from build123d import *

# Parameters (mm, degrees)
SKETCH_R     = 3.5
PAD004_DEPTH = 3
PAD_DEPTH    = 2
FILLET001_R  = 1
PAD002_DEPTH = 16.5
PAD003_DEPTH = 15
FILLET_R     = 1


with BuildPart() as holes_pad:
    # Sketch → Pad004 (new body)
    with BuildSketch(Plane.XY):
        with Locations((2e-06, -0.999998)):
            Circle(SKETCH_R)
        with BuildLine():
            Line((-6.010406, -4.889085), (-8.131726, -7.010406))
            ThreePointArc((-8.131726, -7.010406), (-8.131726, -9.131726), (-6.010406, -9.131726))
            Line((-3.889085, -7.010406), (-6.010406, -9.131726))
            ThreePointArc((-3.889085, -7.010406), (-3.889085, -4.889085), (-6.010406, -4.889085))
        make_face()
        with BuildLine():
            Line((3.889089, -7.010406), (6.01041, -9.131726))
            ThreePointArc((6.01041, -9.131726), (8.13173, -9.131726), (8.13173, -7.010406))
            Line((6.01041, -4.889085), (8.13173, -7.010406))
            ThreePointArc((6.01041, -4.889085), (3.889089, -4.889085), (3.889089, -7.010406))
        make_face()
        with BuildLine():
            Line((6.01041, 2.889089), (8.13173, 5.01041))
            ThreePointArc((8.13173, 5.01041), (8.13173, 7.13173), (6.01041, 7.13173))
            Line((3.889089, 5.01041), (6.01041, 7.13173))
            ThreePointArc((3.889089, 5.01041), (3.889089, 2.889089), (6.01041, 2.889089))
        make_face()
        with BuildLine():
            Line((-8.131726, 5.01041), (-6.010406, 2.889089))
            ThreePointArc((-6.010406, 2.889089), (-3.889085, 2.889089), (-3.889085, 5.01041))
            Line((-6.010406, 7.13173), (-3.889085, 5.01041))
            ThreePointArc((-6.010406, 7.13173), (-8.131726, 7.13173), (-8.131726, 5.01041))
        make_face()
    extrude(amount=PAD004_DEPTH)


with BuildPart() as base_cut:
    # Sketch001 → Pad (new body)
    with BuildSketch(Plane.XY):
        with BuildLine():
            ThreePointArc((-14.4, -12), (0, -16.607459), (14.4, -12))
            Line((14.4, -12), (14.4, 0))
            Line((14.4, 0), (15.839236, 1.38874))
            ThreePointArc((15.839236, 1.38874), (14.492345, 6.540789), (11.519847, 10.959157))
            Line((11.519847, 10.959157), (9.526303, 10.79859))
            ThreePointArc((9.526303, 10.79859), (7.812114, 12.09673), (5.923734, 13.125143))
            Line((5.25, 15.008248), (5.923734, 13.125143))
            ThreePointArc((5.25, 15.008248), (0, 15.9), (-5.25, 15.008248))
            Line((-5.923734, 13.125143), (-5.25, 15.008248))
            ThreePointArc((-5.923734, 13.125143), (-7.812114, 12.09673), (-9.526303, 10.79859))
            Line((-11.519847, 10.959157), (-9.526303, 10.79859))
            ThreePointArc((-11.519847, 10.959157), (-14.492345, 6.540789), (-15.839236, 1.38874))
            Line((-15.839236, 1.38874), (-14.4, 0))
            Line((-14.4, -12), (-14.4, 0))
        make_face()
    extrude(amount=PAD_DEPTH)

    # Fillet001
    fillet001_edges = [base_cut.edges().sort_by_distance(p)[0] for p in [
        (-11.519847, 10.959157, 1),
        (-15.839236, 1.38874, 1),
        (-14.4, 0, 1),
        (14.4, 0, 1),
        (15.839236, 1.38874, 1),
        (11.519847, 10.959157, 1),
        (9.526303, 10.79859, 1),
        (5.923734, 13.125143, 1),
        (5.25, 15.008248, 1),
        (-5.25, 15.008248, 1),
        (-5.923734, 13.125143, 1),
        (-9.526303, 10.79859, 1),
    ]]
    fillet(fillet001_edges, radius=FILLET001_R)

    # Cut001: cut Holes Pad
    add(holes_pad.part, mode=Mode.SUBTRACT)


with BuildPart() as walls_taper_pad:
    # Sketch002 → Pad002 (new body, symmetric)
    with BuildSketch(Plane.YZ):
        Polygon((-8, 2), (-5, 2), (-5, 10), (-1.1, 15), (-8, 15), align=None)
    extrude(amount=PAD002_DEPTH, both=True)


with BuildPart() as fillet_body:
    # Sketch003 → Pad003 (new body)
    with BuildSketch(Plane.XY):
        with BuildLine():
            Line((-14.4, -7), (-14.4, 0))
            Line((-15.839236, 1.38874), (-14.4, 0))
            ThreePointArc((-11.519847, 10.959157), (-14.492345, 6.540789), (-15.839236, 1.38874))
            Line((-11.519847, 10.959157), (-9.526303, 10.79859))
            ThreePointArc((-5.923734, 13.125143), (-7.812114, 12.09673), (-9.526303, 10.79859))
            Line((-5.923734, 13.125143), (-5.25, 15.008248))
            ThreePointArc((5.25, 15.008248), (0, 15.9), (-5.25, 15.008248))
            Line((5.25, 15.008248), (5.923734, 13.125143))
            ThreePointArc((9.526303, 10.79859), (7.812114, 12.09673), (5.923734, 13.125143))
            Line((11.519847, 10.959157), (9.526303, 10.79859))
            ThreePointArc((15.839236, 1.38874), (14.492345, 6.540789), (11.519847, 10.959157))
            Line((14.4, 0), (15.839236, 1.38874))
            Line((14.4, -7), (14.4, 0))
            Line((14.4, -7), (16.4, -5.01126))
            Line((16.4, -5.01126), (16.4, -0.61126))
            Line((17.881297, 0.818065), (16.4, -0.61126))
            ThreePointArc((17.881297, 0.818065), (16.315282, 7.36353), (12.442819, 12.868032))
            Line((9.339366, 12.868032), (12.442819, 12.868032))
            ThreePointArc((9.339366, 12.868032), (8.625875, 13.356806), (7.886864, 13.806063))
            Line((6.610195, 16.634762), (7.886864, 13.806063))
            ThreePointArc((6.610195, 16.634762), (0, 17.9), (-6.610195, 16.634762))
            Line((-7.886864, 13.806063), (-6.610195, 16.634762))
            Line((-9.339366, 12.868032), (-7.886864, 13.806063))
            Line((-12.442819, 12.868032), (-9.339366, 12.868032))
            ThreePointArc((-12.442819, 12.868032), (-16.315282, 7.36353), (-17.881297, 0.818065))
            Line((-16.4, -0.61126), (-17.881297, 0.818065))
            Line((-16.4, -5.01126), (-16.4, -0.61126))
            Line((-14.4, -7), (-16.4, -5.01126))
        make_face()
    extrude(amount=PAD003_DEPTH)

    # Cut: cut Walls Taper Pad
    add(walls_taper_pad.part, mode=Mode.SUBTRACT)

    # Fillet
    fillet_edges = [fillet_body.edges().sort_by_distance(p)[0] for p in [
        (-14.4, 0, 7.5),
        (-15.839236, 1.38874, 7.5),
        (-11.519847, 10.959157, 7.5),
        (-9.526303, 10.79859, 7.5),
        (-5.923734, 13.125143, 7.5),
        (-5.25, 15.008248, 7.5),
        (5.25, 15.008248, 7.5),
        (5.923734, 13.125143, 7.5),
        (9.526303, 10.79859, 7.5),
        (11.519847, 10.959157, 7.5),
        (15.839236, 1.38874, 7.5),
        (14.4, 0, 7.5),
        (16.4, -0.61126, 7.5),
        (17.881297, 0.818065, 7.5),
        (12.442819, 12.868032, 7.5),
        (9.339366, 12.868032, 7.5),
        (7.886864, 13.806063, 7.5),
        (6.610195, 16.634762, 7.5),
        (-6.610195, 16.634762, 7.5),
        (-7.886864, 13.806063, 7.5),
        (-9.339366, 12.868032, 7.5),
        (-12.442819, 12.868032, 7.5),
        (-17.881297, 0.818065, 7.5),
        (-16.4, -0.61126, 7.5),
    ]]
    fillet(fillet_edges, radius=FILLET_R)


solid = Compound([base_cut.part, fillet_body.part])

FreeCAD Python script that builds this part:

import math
import FreeCAD as App
import Part
import Sketcher

V = App.Vector
Q = App.Units.Quantity


def edges_at(feature, points):
    """Names of the edges that pass closest to the given points."""
    edges = feature.Shape.Edges
    near = lambda p: min(range(len(edges)), key=lambda i: edges[i].distToShape(Part.Vertex(*p))[0])
    return sorted({f"Edge{near(p) + 1}" for p in points})

doc = App.newDocument("Part")
body = doc.addObject("PartDesign::Body", "Body")
body.AllowCompound = True

# Sketch on XY plane
sketch1 = doc.addObject("Sketcher::SketchObject", "Sketch")
body.addObject(sketch1)
sketch1.AttachmentSupport = (doc.XY_Plane, [""])
sketch1.MapMode = "FlatFace"
sketch1.addGeometry(Part.Circle(V(0, -1, 0), V(0, 0, 1), 3.5), False)
sketch1.addGeometry(Part.LineSegment(V(-6, -4.9, 0), V(-8.1, -7, 0)), False)
sketch1.addGeometry(Part.ArcOfCircle(Part.Circle(V(-7.1, -8.1, 0), V(0, 0, 1), 1.5), math.radians(135), math.radians(315)), False)
sketch1.addGeometry(Part.LineSegment(V(-6, -9.1, 0), V(-3.9, -7, 0)), False)
sketch1.addGeometry(Part.ArcOfCircle(Part.Circle(V(-4.9, -5.9, 0), V(0, 0, 1), 1.5), math.radians(-45), math.radians(135)), False)
sketch1.addGeometry(Part.LineSegment(V(3.9, -7, 0), V(6, -9.1, 0)), False)
sketch1.addGeometry(Part.ArcOfCircle(Part.Circle(V(7.1, -8.1, 0), V(0, 0, 1), 1.5), math.radians(-135), math.radians(45)), False)
sketch1.addGeometry(Part.LineSegment(V(8.1, -7, 0), V(6, -4.9, 0)), False)
sketch1.addGeometry(Part.ArcOfCircle(Part.Circle(V(4.9, -5.9, 0), V(0, 0, 1), 1.5), math.radians(45), math.radians(225)), False)
sketch1.addGeometry(Part.LineSegment(V(6, 2.9, 0), V(8.1, 5, 0)), False)
sketch1.addGeometry(Part.ArcOfCircle(Part.Circle(V(7.1, 6.1, 0), V(0, 0, 1), 1.5), math.radians(-45), math.radians(135)), False)
sketch1.addGeometry(Part.LineSegment(V(6, 7.1, 0), V(3.9, 5, 0)), False)
sketch1.addGeometry(Part.ArcOfCircle(Part.Circle(V(4.9, 3.9, 0), V(0, 0, 1), 1.5), math.radians(135), math.radians(315)), False)
sketch1.addGeometry(Part.LineSegment(V(-8.1, 5, 0), V(-6, 2.9, 0)), False)
sketch1.addGeometry(Part.ArcOfCircle(Part.Circle(V(-4.9, 3.9, 0), V(0, 0, 1), 1.5), math.radians(-135), math.radians(45)), False)
sketch1.addGeometry(Part.LineSegment(V(-3.9, 5, 0), V(-6, 7.1, 0)), False)
sketch1.addGeometry(Part.ArcOfCircle(Part.Circle(V(-7.1, 6.1, 0), V(0, 0, 1), 1.5), math.radians(45), math.radians(225)), False)
sketch1.addConstraint(Sketcher.Constraint("Tangent", 1, 2, 2, 1))
sketch1.addConstraint(Sketcher.Constraint("Tangent", 2, 2, 3, 1))
sketch1.addConstraint(Sketcher.Constraint("Tangent", 3, 2, 4, 1))
sketch1.addConstraint(Sketcher.Constraint("Tangent", 4, 2, 1, 1))
sketch1.addConstraint(Sketcher.Constraint("Tangent", 5, 2, 6, 1))
sketch1.addConstraint(Sketcher.Constraint("Tangent", 6, 2, 7, 1))
sketch1.addConstraint(Sketcher.Constraint("Tangent", 7, 2, 8, 1))
sketch1.addConstraint(Sketcher.Constraint("Tangent", 8, 2, 5, 1))
sketch1.addConstraint(Sketcher.Constraint("Tangent", 9, 2, 10, 1))
sketch1.addConstraint(Sketcher.Constraint("Tangent", 10, 2, 11, 1))
sketch1.addConstraint(Sketcher.Constraint("Tangent", 11, 2, 12, 1))
sketch1.addConstraint(Sketcher.Constraint("Tangent", 12, 2, 9, 1))
sketch1.addConstraint(Sketcher.Constraint("Tangent", 13, 2, 14, 1))
sketch1.addConstraint(Sketcher.Constraint("Tangent", 14, 2, 15, 1))
sketch1.addConstraint(Sketcher.Constraint("Tangent", 15, 2, 16, 1))
sketch1.addConstraint(Sketcher.Constraint("Tangent", 16, 2, 13, 1))
sketch1.addConstraint(Sketcher.Constraint("Equal", 2, 4))
sketch1.addConstraint(Sketcher.Constraint("Equal", 4, 6))
sketch1.addConstraint(Sketcher.Constraint("Equal", 6, 8))
sketch1.addConstraint(Sketcher.Constraint("Equal", 8, 10))
sketch1.addConstraint(Sketcher.Constraint("Equal", 10, 12))
sketch1.addConstraint(Sketcher.Constraint("Equal", 12, 14))
sketch1.addConstraint(Sketcher.Constraint("Equal", 14, 16))
sketch1.addConstraint(Sketcher.Constraint("Symmetric", 2, 3, 6, 3, -2))
sketch1.addConstraint(Sketcher.Constraint("Symmetric", 4, 3, 8, 3, -2))
sketch1.addConstraint(Sketcher.Constraint("Symmetric", 12, 3, 14, 3, -2))
sketch1.addConstraint(Sketcher.Constraint("Symmetric", 10, 3, 16, 3, -2))
sketch1.addConstraint(Sketcher.Constraint("Perpendicular", 3, 5))
sketch1.addConstraint(Sketcher.Constraint("Perpendicular", 7, 9))
sketch1.addConstraint(Sketcher.Constraint("Horizontal", 1, 2, 3, 2))
sketch1.addConstraint(Sketcher.Constraint("Horizontal", 9, 2, 11, 2))
sketch1.addConstraint(Sketcher.Constraint("Vertical", 6, 3, 10, 3))
sketch1.addConstraint(Sketcher.Constraint("Diameter", 0, Q("7 mm")))
sketch1.addConstraint(Sketcher.Constraint("Radius", 2, Q("1.5 mm")))
sketch1.addConstraint(Sketcher.Constraint("DistanceY", 0, 3, -1, 1, Q("0.999998 mm")))
sketch1.addConstraint(Sketcher.Constraint("DistanceX", -1, 1, 6, 3, Q("7.07107 mm")))
sketch1.addConstraint(Sketcher.Constraint("DistanceY", -1, 1, 10, 3, Q("6.07107 mm")))
sketch1.addConstraint(Sketcher.Constraint("DistanceX", 2, 3, 0, 3, Q("7.071068 mm")))
sketch1.addConstraint(Sketcher.Constraint("DistanceY", 2, 3, 0, 3, Q("7.071068 mm")))
pad1 = doc.addObject("PartDesign::Pad", "Pad")
body.addObject(pad1)
pad1.Profile = sketch1
pad1.Length = 3
body2 = doc.addObject("PartDesign::Body", "Body001")

# Sketch on XY plane
sketch2 = doc.addObject("Sketcher::SketchObject", "Sketch001")
body2.addObject(sketch2)
sketch2.AttachmentSupport = (doc.getObject("XY_Plane001"), [""])
sketch2.MapMode = "FlatFace"
sketch2.addGeometry(Part.ArcOfCircle(Part.Circle(V(0, 8.198912, 0), V(0, 0, 1), 24.806371), math.radians(-125.485438), math.radians(-54.514562)), False)
sketch2.addGeometry(Part.LineSegment(V(14.4, -12, 0), V(14.4, 0, 0)), False)
sketch2.addGeometry(Part.LineSegment(V(14.4, 0, 0), V(15.839236, 1.38874, 0)), False)
sketch2.addGeometry(Part.ArcOfCircle(Part.Circle(V(-0.000006, -0.000003, 0), V(0, 0, 1), 15.900006), math.radians(5.010728), math.radians(43.571169)), False)
sketch2.addGeometry(Part.LineSegment(V(11.519847, 10.959157, 0), V(9.526303, 10.79859, 0)), False)
sketch2.addGeometry(Part.ArcOfCircle(Part.Circle(V(0.000004, 0.000008, 0), V(0, 0, 1), 14.399991), math.radians(48.581889), math.radians(65.70905)), False)
sketch2.addGeometry(Part.LineSegment(V(5.923734, 13.125143, 0), V(5.25, 15.008248, 0)), False)
sketch2.addGeometry(Part.ArcOfCircle(Part.Circle(V(0, -0.000005, 0), V(0, 0, 1), 15.900005), math.radians(70.719778), math.radians(109.280222)), False)
sketch2.addGeometry(Part.LineSegment(V(-5.25, 15.008248, 0), V(-5.923734, 13.125143, 0)), False)
sketch2.addGeometry(Part.ArcOfCircle(Part.Circle(V(-0.000004, 0.000008, 0), V(0, 0, 1), 14.399991), math.radians(114.29095), math.radians(131.418111)), False)
sketch2.addGeometry(Part.LineSegment(V(-9.526303, 10.79859, 0), V(-11.519847, 10.959157, 0)), False)
sketch2.addGeometry(Part.ArcOfCircle(Part.Circle(V(0.000006, -0.000003, 0), V(0, 0, 1), 15.900006), math.radians(136.428831), math.radians(174.989272)), False)
sketch2.addGeometry(Part.LineSegment(V(-15.839236, 1.38874, 0), V(-14.4, 0, 0)), False)
sketch2.addGeometry(Part.LineSegment(V(-14.4, 0, 0), V(-14.4, -12, 0)), False)
sketch2.addConstraint(Sketcher.Constraint("Coincident", 0, 2, 1, 1))
sketch2.addConstraint(Sketcher.Constraint("Coincident", 1, 2, 2, 1))
sketch2.addConstraint(Sketcher.Constraint("Coincident", 2, 2, 3, 1))
sketch2.addConstraint(Sketcher.Constraint("Coincident", 3, 2, 4, 1))
sketch2.addConstraint(Sketcher.Constraint("Coincident", 4, 2, 5, 1))
sketch2.addConstraint(Sketcher.Constraint("Coincident", 5, 2, 6, 1))
sketch2.addConstraint(Sketcher.Constraint("Coincident", 6, 2, 7, 1))
sketch2.addConstraint(Sketcher.Constraint("Coincident", 7, 2, 8, 1))
sketch2.addConstraint(Sketcher.Constraint("Coincident", 8, 2, 9, 1))
sketch2.addConstraint(Sketcher.Constraint("Coincident", 9, 2, 10, 1))
sketch2.addConstraint(Sketcher.Constraint("Coincident", 10, 2, 11, 1))
sketch2.addConstraint(Sketcher.Constraint("Coincident", 11, 2, 12, 1))
sketch2.addConstraint(Sketcher.Constraint("Coincident", 12, 2, 13, 1))
sketch2.addConstraint(Sketcher.Constraint("Coincident", 13, 2, 0, 1))
sketch2.addConstraint(Sketcher.Constraint("Vertical", 1))
sketch2.addConstraint(Sketcher.Constraint("Vertical", 13))
sketch2.addConstraint(Sketcher.Constraint("Coincident", 3, 3, -1, 1))
sketch2.addConstraint(Sketcher.Constraint("Coincident", 5, 3, -1, 1))
sketch2.addConstraint(Sketcher.Constraint("Coincident", 7, 3, -1, 1))
sketch2.addConstraint(Sketcher.Constraint("Coincident", 9, 3, -1, 1))
sketch2.addConstraint(Sketcher.Constraint("Coincident", 11, 3, -1, 1))
sketch2.addConstraint(Sketcher.Constraint("PointOnObject", 0, 3, -2))
sketch2.addConstraint(Sketcher.Constraint("PointOnObject", 1, 2, -1))
sketch2.addConstraint(Sketcher.Constraint("PointOnObject", 12, 2, -1))
sketch2.addConstraint(Sketcher.Constraint("DistanceY", 1, 1, 1, 2, Q("12 mm")))
sketch2.addConstraint(Sketcher.Constraint("DistanceY", 13, 2, 13, 1, Q("12 mm")))
sketch2.addConstraint(Sketcher.Constraint("Distance", 2, Q("2 mm")))
sketch2.addConstraint(Sketcher.Constraint("Distance", 4, Q("2 mm")))
sketch2.addConstraint(Sketcher.Constraint("Distance", 6, Q("2 mm")))
sketch2.addConstraint(Sketcher.Constraint("Distance", 8, Q("2 mm")))
sketch2.addConstraint(Sketcher.Constraint("Distance", 10, Q("2 mm")))
sketch2.addConstraint(Sketcher.Constraint("Distance", 12, Q("2 mm")))
sketch2.addConstraint(Sketcher.Constraint("DistanceX", -1, 1, 0, 2, Q("14.4 mm")))
sketch2.addConstraint(Sketcher.Constraint("DistanceX", 7, 2, 6, 2, Q("10.5 mm")))
sketch2.addConstraint(Sketcher.Constraint("DistanceX", -1, 1, 6, 2, Q("5.25 mm")))
sketch2.addConstraint(Sketcher.Constraint("Radius", 0, Q("24.806371 mm")))
sketch2.addConstraint(Sketcher.Constraint("Radius", 5, Q("14.399991 mm")))
sketch2.addConstraint(Sketcher.Constraint("Radius", 9, Q("14.399991 mm")))
sketch2.addConstraint(Sketcher.Constraint("Radius", 3, Q("15.900006 mm")))
sketch2.addConstraint(Sketcher.Constraint("Radius", 7, Q("15.900005 mm")))
sketch2.addConstraint(Sketcher.Constraint("Radius", 11, Q("15.900006 mm")))
sketch2.addConstraint(Sketcher.Constraint("DistanceX", 5, 3, 4, 2, Q("9.526299 mm")))
sketch2.addConstraint(Sketcher.Constraint("DistanceX", 9, 2, 9, 3, Q("9.526299 mm")))
pad2 = doc.addObject("PartDesign::Pad", "Pad001")
body2.addObject(pad2)
pad2.Profile = sketch2
pad2.Length = 2
doc.recompute()

fillet = doc.addObject("PartDesign::Fillet", "Fillet")
body2.addObject(fillet)
fillet.Base = (pad2, edges_at(pad2, [
    (-11.52, 10.959, 1),
    (-15.839, 1.389, 1),
    (-14.4, 0, 1),
    (14.4, 0, 1),
    (15.839, 1.389, 1),
    (11.52, 10.959, 1),
    (9.526, 10.799, 1),
    (5.924, 13.125, 1),
    (5.25, 15.008, 1),
    (-5.25, 15.008, 1),
    (-5.924, 13.125, 1),
    (-9.526, 10.799, 1),
]))
fillet.Radius = 1
doc.recompute()

boolean = doc.addObject("PartDesign::Boolean", "Boolean")
body2.addObject(boolean)
boolean.Type = "Cut"
boolean.addObjects([body])
body3 = doc.addObject("PartDesign::Body", "Body002")

# Sketch on YZ plane
sketch3 = doc.addObject("Sketcher::SketchObject", "Sketch002")
body3.addObject(sketch3)
sketch3.AttachmentSupport = (doc.getObject("YZ_Plane002"), [""])
sketch3.MapMode = "FlatFace"
sketch3.addGeometry(Part.LineSegment(V(-8, 2, 0), V(-5, 2, 0)), False)
sketch3.addGeometry(Part.LineSegment(V(-5, 2, 0), V(-5, 10, 0)), False)
sketch3.addGeometry(Part.LineSegment(V(-5, 10, 0), V(-1.1, 15, 0)), False)
sketch3.addGeometry(Part.LineSegment(V(-1.1, 15, 0), V(-8, 15, 0)), False)
sketch3.addGeometry(Part.LineSegment(V(-8, 15, 0), V(-8, 2, 0)), False)
sketch3.addConstraint(Sketcher.Constraint("Coincident", 0, 2, 1, 1))
sketch3.addConstraint(Sketcher.Constraint("Coincident", 1, 2, 2, 1))
sketch3.addConstraint(Sketcher.Constraint("Coincident", 2, 2, 3, 1))
sketch3.addConstraint(Sketcher.Constraint("Coincident", 3, 2, 4, 1))
sketch3.addConstraint(Sketcher.Constraint("Coincident", 4, 2, 0, 1))
sketch3.addConstraint(Sketcher.Constraint("Horizontal", 0))
sketch3.addConstraint(Sketcher.Constraint("Vertical", 1))
sketch3.addConstraint(Sketcher.Constraint("Horizontal", 3))
sketch3.addConstraint(Sketcher.Constraint("Vertical", 4))
sketch3.addConstraint(Sketcher.Constraint("DistanceX", 0, 1, 0, 2, Q("3 mm")))
sketch3.addConstraint(Sketcher.Constraint("DistanceY", 1, 1, 1, 2, Q("8 mm")))
sketch3.addConstraint(Sketcher.Constraint("DistanceY", 4, 2, 4, 1, Q("13 mm")))
sketch3.addConstraint(Sketcher.Constraint("DistanceX", 3, 2, 3, 1, Q("6.9 mm")))
sketch3.addConstraint(Sketcher.Constraint("DistanceX", 0, 2, -1, 1, Q("5 mm")))
sketch3.addConstraint(Sketcher.Constraint("DistanceY", -1, 1, 0, 2, Q("2 mm")))
pad3 = doc.addObject("PartDesign::Pad", "Pad002")
body3.addObject(pad3)
pad3.Profile = sketch3
pad3.Length = 33
pad3.Midplane = True
body4 = doc.addObject("PartDesign::Body", "Body003")

# Sketch on XY plane
sketch4 = doc.addObject("Sketcher::SketchObject", "Sketch003")
body4.addObject(sketch4)
sketch4.AttachmentSupport = (doc.getObject("XY_Plane003"), [""])
sketch4.MapMode = "FlatFace"
sketch4.addGeometry(Part.LineSegment(V(-14.4, -7, 0), V(-14.4, 0, 0)), False)
sketch4.addGeometry(Part.LineSegment(V(-14.4, 0, 0), V(-15.839236, 1.38874, 0)), False)
sketch4.addGeometry(Part.ArcOfCircle(Part.Circle(V(0.000006, -0.000003, 0), V(0, 0, 1), 15.900006), math.radians(136.428831), math.radians(174.989272)), False)
sketch4.addGeometry(Part.LineSegment(V(-11.519847, 10.959157, 0), V(-9.526303, 10.79859, 0)), False)
sketch4.addGeometry(Part.ArcOfCircle(Part.Circle(V(-0.000004, 0.000008, 0), V(0, 0, 1), 14.399991), math.radians(114.29095), math.radians(131.418111)), False)
sketch4.addGeometry(Part.LineSegment(V(-5.923734, 13.125143, 0), V(-5.25, 15.008248, 0)), False)
sketch4.addGeometry(Part.ArcOfCircle(Part.Circle(V(0, -0.000005, 0), V(0, 0, 1), 15.900005), math.radians(70.719778), math.radians(109.280222)), False)
sketch4.addGeometry(Part.LineSegment(V(5.25, 15.008248, 0), V(5.923734, 13.125143, 0)), False)
sketch4.addGeometry(Part.ArcOfCircle(Part.Circle(V(0.000004, 0.000008, 0), V(0, 0, 1), 14.399991), math.radians(48.581889), math.radians(65.70905)), False)
sketch4.addGeometry(Part.LineSegment(V(9.526303, 10.79859, 0), V(11.519847, 10.959157, 0)), False)
sketch4.addGeometry(Part.ArcOfCircle(Part.Circle(V(-0.000006, -0.000003, 0), V(0, 0, 1), 15.900006), math.radians(5.010728), math.radians(43.571169)), False)
sketch4.addGeometry(Part.LineSegment(V(15.839236, 1.38874, 0), V(14.4, 0, 0)), False)
sketch4.addGeometry(Part.LineSegment(V(14.4, 0, 0), V(14.4, -7, 0)), False)
sketch4.addGeometry(Part.LineSegment(V(14.4, -7, 0), V(16.4, -5.01126, 0)), False)
sketch4.addGeometry(Part.LineSegment(V(16.4, -5.01126, 0), V(16.4, -0.61126, 0)), False)
sketch4.addGeometry(Part.LineSegment(V(16.4, -0.61126, 0), V(17.881297, 0.818065, 0)), False)
sketch4.addGeometry(Part.ArcOfCircle(Part.Circle(V(0, -0.000001, 0), V(0, 0, 1), 17.900001), math.radians(2.619445), math.radians(45.962459)), False)
sketch4.addGeometry(Part.LineSegment(V(12.442819, 12.868032, 0), V(9.339366, 12.868032, 0)), False)
sketch4.addGeometry(Part.ArcOfCircle(Part.Circle(V(-0.000184, -0.000287, 0), V(0, 0, 1), 15.90034), math.radians(54.028661), math.radians(60.2623)), False)
sketch4.addGeometry(Part.LineSegment(V(7.886864, 13.806063, 0), V(6.610195, 16.634762, 0)), False)
sketch4.addGeometry(Part.ArcOfCircle(Part.Circle(V(0, 0.000006, 0), V(0, 0, 1), 17.899994), math.radians(68.328487), math.radians(111.671513)), False)
sketch4.addGeometry(Part.LineSegment(V(-6.610195, 16.634762, 0), V(-7.886864, 13.806063, 0)), False)
sketch4.addGeometry(Part.LineSegment(V(-7.886864, 13.806063, 0), V(-9.339366, 12.868032, 0)), False)
sketch4.addGeometry(Part.LineSegment(V(-9.339366, 12.868032, 0), V(-12.442819, 12.868032, 0)), False)
sketch4.addGeometry(Part.ArcOfCircle(Part.Circle(V(0, -0.000001, 0), V(0, 0, 1), 17.900001), math.radians(134.037541), math.radians(177.380555)), False)
sketch4.addGeometry(Part.LineSegment(V(-17.881297, 0.818065, 0), V(-16.4, -0.61126, 0)), False)
sketch4.addGeometry(Part.LineSegment(V(-16.4, -0.61126, 0), V(-16.4, -5.01126, 0)), False)
sketch4.addGeometry(Part.LineSegment(V(-16.4, -5.01126, 0), V(-14.4, -7, 0)), False)
sketch4.addConstraint(Sketcher.Constraint("Coincident", 0, 2, 1, 1))
sketch4.addConstraint(Sketcher.Constraint("Coincident", 1, 2, 2, 2))
sketch4.addConstraint(Sketcher.Constraint("Coincident", 2, 1, 3, 1))
sketch4.addConstraint(Sketcher.Constraint("Coincident", 3, 2, 4, 2))
sketch4.addConstraint(Sketcher.Constraint("Coincident", 4, 1, 5, 1))
sketch4.addConstraint(Sketcher.Constraint("Coincident", 5, 2, 6, 2))
sketch4.addConstraint(Sketcher.Constraint("Coincident", 6, 1, 7, 1))
sketch4.addConstraint(Sketcher.Constraint("Coincident", 7, 2, 8, 2))
sketch4.addConstraint(Sketcher.Constraint("Coincident", 8, 1, 9, 1))
sketch4.addConstraint(Sketcher.Constraint("Coincident", 9, 2, 10, 2))
sketch4.addConstraint(Sketcher.Constraint("Coincident", 10, 1, 11, 1))
sketch4.addConstraint(Sketcher.Constraint("Coincident", 11, 2, 12, 1))
sketch4.addConstraint(Sketcher.Constraint("Coincident", 12, 2, 13, 1))
sketch4.addConstraint(Sketcher.Constraint("Coincident", 13, 2, 14, 1))
sketch4.addConstraint(Sketcher.Constraint("Coincident", 14, 2, 15, 1))
sketch4.addConstraint(Sketcher.Constraint("Coincident", 15, 2, 16, 1))
sketch4.addConstraint(Sketcher.Constraint("Coincident", 16, 2, 17, 1))
sketch4.addConstraint(Sketcher.Constraint("Coincident", 17, 2, 18, 1))
sketch4.addConstraint(Sketcher.Constraint("Coincident", 18, 2, 19, 1))
sketch4.addConstraint(Sketcher.Constraint("Coincident", 19, 2, 20, 1))
sketch4.addConstraint(Sketcher.Constraint("Coincident", 20, 2, 21, 1))
sketch4.addConstraint(Sketcher.Constraint("Coincident", 21, 2, 22, 1))
sketch4.addConstraint(Sketcher.Constraint("Coincident", 22, 2, 23, 1))
sketch4.addConstraint(Sketcher.Constraint("Coincident", 23, 2, 24, 1))
sketch4.addConstraint(Sketcher.Constraint("Coincident", 24, 2, 25, 1))
sketch4.addConstraint(Sketcher.Constraint("Coincident", 25, 2, 26, 1))
sketch4.addConstraint(Sketcher.Constraint("Coincident", 26, 2, 27, 1))
sketch4.addConstraint(Sketcher.Constraint("Coincident", 27, 2, 0, 1))
sketch4.addConstraint(Sketcher.Constraint("Vertical", 0))
sketch4.addConstraint(Sketcher.Constraint("Vertical", 12))
sketch4.addConstraint(Sketcher.Constraint("Vertical", 14))
sketch4.addConstraint(Sketcher.Constraint("Horizontal", 17))
sketch4.addConstraint(Sketcher.Constraint("Horizontal", 23))
sketch4.addConstraint(Sketcher.Constraint("Vertical", 26))
sketch4.addConstraint(Sketcher.Constraint("Coincident", 2, 3, -1, 1))
sketch4.addConstraint(Sketcher.Constraint("Coincident", 4, 3, -1, 1))
sketch4.addConstraint(Sketcher.Constraint("Coincident", 6, 3, -1, 1))
sketch4.addConstraint(Sketcher.Constraint("Coincident", 8, 3, -1, 1))
sketch4.addConstraint(Sketcher.Constraint("Coincident", 10, 3, -1, 1))
sketch4.addConstraint(Sketcher.Constraint("Coincident", 16, 3, -1, 1))
sketch4.addConstraint(Sketcher.Constraint("Coincident", 20, 3, -1, 1))
sketch4.addConstraint(Sketcher.Constraint("Coincident", 24, 3, -1, 1))
sketch4.addConstraint(Sketcher.Constraint("PointOnObject", 0, 2, -1))
sketch4.addConstraint(Sketcher.Constraint("PointOnObject", 11, 2, -1))
sketch4.addConstraint(Sketcher.Constraint("Radius", 16, Q("17.900001 mm")))
sketch4.addConstraint(Sketcher.Constraint("Radius", 24, Q("17.900001 mm")))
sketch4.addConstraint(Sketcher.Constraint("DistanceY", 0, 1, 0, 2, Q("7 mm")))
sketch4.addConstraint(Sketcher.Constraint("DistanceY", 12, 2, 12, 1, Q("7 mm")))
sketch4.addConstraint(Sketcher.Constraint("Distance", 1, Q("2 mm")))
sketch4.addConstraint(Sketcher.Constraint("Distance", 3, Q("2 mm")))
sketch4.addConstraint(Sketcher.Constraint("Distance", 5, Q("2 mm")))
sketch4.addConstraint(Sketcher.Constraint("Distance", 7, Q("2 mm")))
sketch4.addConstraint(Sketcher.Constraint("Distance", 9, Q("2 mm")))
sketch4.addConstraint(Sketcher.Constraint("Distance", 11, Q("2 mm")))
sketch4.addConstraint(Sketcher.Constraint("DistanceY", 14, 1, 14, 2, Q("4.4 mm")))
sketch4.addConstraint(Sketcher.Constraint("DistanceY", 26, 2, 26, 1, Q("4.4 mm")))
sketch4.addConstraint(Sketcher.Constraint("DistanceX", 12, 2, 13, 2, Q("2 mm")))
sketch4.addConstraint(Sketcher.Constraint("DistanceY", 14, 2, 10, 1, Q("2 mm")))
sketch4.addConstraint(Sketcher.Constraint("DistanceY", 25, 2, 1, 2, Q("2 mm")))
sketch4.addConstraint(Sketcher.Constraint("DistanceX", 25, 2, 0, 2, Q("2 mm")))
sketch4.addConstraint(Sketcher.Constraint("DistanceX", 0, 2, -1, 1, Q("14.4 mm")))
sketch4.addConstraint(Sketcher.Constraint("DistanceX", -1, 1, 11, 2, Q("14.4 mm")))
sketch4.addConstraint(Sketcher.Constraint("DistanceX", 5, 2, 6, 1, Q("10.5 mm")))
sketch4.addConstraint(Sketcher.Constraint("DistanceX", 5, 2, -1, 1, Q("5.25 mm")))
sketch4.addConstraint(Sketcher.Constraint("Radius", 4, Q("14.399991 mm")))
sketch4.addConstraint(Sketcher.Constraint("Radius", 8, Q("14.399991 mm")))
sketch4.addConstraint(Sketcher.Constraint("Radius", 18, Q("15.90034 mm")))
sketch4.addConstraint(Sketcher.Constraint("Radius", 2, Q("15.900006 mm")))
sketch4.addConstraint(Sketcher.Constraint("Radius", 6, Q("15.900005 mm")))
sketch4.addConstraint(Sketcher.Constraint("Radius", 10, Q("15.900006 mm")))
sketch4.addConstraint(Sketcher.Constraint("Radius", 20, Q("17.899994 mm")))
sketch4.addConstraint(Sketcher.Constraint("DistanceX", 3, 2, 4, 3, Q("9.526299 mm")))
sketch4.addConstraint(Sketcher.Constraint("DistanceX", 8, 3, 8, 1, Q("9.526299 mm")))
sketch4.addConstraint(Sketcher.Constraint("DistanceY", 18, 2, 19, 2, Q("2.828699 mm")))
sketch4.addConstraint(Sketcher.Constraint("DistanceY", 21, 2, 20, 2, Q("2.828699 mm")))
sketch4.addConstraint(Sketcher.Constraint("Distance", 15, Q("2.058449 mm")))
sketch4.addConstraint(Sketcher.Constraint("Distance", 25, Q("2.058449 mm")))
sketch4.addConstraint(Sketcher.Constraint("DistanceX", 17, 2, 17, 1, Q("3.103453 mm")))
sketch4.addConstraint(Sketcher.Constraint("DistanceX", 23, 2, 23, 1, Q("3.103453 mm")))
sketch4.addConstraint(Sketcher.Constraint("DistanceX", -1, 1, 16, 2, Q("12.442819 mm")))
sketch4.addConstraint(Sketcher.Constraint("DistanceY", -1, 1, 19, 2, Q("16.634762 mm")))
sketch4.addConstraint(Sketcher.Constraint("DistanceY", -1, 1, 20, 2, Q("16.634762 mm")))
sketch4.addConstraint(Sketcher.Constraint("DistanceX", 23, 2, -1, 1, Q("12.442819 mm")))
sketch4.addConstraint(Sketcher.Constraint("DistanceX", 18, 3, 2, 3, Q("0.00019 mm")))
sketch4.addConstraint(Sketcher.Constraint("DistanceX", 21, 2, 4, 1, Q("1.96313 mm")))
pad4 = doc.addObject("PartDesign::Pad", "Pad003")
body4.addObject(pad4)
pad4.Profile = sketch4
pad4.Length = 15
doc.recompute()

boolean2 = doc.addObject("PartDesign::Boolean", "Boolean001")
body4.addObject(boolean2)
boolean2.Type = "Cut"
boolean2.addObjects([body3])
doc.recompute()

fillet2 = doc.addObject("PartDesign::Fillet", "Fillet001")
body4.addObject(fillet2)
fillet2.Base = (boolean2, edges_at(boolean2, [
    (-14.4, 0, 7.5),
    (-15.839, 1.389, 7.5),
    (-11.52, 10.959, 7.5),
    (-9.526, 10.799, 7.5),
    (-5.924, 13.125, 7.5),
    (-5.25, 15.008, 7.5),
    (5.25, 15.008, 7.5),
    (5.924, 13.125, 7.5),
    (9.526, 10.799, 7.5),
    (11.52, 10.959, 7.5),
    (15.839, 1.389, 7.5),
    (14.4, 0, 7.5),
    (16.4, -0.611, 7.5),
    (17.881, 0.818, 7.5),
    (12.443, 12.868, 7.5),
    (9.339, 12.868, 7.5),
    (7.887, 13.806, 7.5),
    (6.61, 16.635, 7.5),
    (-6.61, 16.635, 7.5),
    (-7.887, 13.806, 7.5),
    (-9.339, 12.868, 7.5),
    (-12.443, 12.868, 7.5),
    (-17.881, 0.818, 7.5),
    (-16.4, -0.611, 7.5),
]))
fillet2.Radius = 1

doc.recompute()
